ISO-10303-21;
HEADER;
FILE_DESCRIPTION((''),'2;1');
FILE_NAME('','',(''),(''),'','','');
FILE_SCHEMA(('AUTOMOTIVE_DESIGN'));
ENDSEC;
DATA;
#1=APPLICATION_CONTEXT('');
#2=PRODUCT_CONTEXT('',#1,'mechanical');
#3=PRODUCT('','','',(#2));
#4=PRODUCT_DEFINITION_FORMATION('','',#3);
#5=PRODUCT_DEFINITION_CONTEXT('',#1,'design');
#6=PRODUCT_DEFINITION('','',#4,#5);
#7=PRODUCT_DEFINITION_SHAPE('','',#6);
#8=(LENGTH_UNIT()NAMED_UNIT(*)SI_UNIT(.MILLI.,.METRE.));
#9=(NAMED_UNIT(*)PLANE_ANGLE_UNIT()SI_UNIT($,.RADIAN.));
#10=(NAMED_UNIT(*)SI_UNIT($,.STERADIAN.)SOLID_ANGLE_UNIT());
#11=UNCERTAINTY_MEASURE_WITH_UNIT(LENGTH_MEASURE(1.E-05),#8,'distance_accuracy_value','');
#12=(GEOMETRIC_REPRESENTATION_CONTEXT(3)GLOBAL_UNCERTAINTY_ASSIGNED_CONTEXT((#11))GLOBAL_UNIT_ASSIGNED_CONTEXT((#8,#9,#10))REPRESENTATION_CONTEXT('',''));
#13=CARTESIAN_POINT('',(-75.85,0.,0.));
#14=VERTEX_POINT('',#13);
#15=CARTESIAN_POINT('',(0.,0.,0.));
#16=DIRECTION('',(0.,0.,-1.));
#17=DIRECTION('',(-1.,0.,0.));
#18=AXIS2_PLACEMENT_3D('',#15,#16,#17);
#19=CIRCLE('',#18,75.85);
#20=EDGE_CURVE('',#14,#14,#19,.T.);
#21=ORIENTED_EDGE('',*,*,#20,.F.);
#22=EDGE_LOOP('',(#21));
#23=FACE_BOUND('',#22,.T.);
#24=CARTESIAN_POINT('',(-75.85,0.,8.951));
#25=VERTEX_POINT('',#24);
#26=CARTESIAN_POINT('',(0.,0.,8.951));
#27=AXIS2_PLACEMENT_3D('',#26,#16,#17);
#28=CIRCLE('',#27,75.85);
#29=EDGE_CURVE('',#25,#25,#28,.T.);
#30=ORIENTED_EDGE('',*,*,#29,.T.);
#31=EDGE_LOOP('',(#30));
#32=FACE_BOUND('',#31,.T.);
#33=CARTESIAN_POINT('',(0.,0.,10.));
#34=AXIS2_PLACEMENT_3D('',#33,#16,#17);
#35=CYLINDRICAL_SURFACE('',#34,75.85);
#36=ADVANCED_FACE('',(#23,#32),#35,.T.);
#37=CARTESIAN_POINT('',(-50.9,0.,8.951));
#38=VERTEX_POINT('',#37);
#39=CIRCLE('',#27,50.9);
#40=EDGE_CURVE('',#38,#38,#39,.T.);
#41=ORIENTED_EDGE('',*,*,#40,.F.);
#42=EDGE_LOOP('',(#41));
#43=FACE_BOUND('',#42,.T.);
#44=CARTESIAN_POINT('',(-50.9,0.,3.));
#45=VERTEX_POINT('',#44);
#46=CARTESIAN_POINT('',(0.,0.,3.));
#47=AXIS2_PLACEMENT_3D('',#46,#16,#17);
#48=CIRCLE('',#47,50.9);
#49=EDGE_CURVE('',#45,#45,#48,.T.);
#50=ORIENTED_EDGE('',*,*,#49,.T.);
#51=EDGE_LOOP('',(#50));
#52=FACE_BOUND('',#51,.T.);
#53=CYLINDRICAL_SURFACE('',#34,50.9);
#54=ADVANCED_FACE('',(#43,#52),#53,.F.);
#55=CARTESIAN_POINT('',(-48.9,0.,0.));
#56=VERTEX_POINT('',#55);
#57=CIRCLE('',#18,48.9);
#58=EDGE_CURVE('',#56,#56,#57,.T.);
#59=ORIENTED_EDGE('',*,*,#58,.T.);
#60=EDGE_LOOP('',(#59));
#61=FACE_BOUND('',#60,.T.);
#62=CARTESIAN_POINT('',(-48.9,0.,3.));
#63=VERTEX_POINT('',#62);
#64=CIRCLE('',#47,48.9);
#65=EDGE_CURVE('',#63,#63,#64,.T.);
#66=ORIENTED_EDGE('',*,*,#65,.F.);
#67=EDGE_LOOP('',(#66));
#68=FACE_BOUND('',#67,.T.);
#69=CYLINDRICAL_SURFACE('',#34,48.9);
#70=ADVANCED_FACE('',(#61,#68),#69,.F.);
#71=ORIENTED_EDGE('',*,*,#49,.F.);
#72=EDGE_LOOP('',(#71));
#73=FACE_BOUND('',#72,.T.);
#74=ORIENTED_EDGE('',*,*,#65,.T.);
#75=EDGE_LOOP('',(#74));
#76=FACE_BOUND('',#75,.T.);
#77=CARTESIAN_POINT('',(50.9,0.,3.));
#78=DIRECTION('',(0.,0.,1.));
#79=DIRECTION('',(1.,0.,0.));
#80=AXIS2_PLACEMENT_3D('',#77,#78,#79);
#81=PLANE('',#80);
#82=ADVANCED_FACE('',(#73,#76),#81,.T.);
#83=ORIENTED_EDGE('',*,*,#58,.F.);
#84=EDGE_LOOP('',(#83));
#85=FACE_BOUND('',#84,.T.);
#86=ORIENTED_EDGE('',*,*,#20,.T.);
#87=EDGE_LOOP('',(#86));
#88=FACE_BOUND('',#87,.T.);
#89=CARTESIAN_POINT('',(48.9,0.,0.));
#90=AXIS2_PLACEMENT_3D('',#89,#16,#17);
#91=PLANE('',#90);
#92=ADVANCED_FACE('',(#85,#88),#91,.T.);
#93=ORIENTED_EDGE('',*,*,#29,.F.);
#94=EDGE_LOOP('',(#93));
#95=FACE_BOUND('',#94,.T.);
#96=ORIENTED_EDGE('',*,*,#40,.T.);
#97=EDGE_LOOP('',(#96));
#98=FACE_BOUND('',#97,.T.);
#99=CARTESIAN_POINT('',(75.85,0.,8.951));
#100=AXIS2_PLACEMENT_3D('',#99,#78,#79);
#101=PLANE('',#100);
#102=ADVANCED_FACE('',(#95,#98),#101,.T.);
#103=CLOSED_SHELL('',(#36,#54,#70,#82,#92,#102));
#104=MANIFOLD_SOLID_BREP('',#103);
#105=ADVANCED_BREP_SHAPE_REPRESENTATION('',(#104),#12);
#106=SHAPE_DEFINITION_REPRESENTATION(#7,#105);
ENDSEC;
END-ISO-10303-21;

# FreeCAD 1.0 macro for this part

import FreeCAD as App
import Part
import Sketcher

V = App.Vector
Q = App.Units.Quantity


def add_polygon(sketch, points):
    """Adds a closed chain of lines whose ends are joined by coincident constraints."""
    first, n = sketch.GeometryCount, len(points)
    for a, b in zip(points, points[1:] + points[:1]):
        sketch.addGeometry(Part.LineSegment(App.Vector(*a, 0), App.Vector(*b, 0)), False)
    for i in range(n):
        sketch.addConstraint(Sketcher.Constraint("Coincident", first + i, 2, first + (i + 1) % n, 1))

doc = App.newDocument("Part")
body = doc.addObject("PartDesign::Body", "Body")

# Sketch on XZ plane
sketch1 = body.newObject("Sketcher::SketchObject", "Sketch")
sketch1.AttachmentSupport = (doc.getObject("XZ_Plane"), [""])
sketch1.MapMode = "FlatFace"
add_polygon(sketch1, [(48.9, 0), (75.8, 0), (75.8, 9), (50.9, 9), (50.9, 3), (48.9, 3)])  # lines 0-5
sketch1.addConstraint(Sketcher.Constraint("Horizontal", 0))
sketch1.addConstraint(Sketcher.Constraint("Vertical", 1))
sketch1.addConstraint(Sketcher.Constraint("Horizontal", 2))
sketch1.addConstraint(Sketcher.Constraint("Vertical", 3))
sketch1.addConstraint(Sketcher.Constraint("Horizontal", 4))
sketch1.addConstraint(Sketcher.Constraint("Vertical", 5))
sketch1.addConstraint(Sketcher.Constraint("PointOnObject", 0, 2, -1))
sketch1.addConstraint(Sketcher.Constraint("DistanceX", 4, 2, 4, 1, Q("2 mm")))
sketch1.addConstraint(Sketcher.Constraint("DistanceY", 5, 2, 5, 1, Q("3 mm")))
sketch1.addConstraint(Sketcher.Constraint("DistanceX", 0, 1, 0, 2, Q("26.95 mm")))
sketch1.addConstraint(Sketcher.Constraint("DistanceX", -1, 1, 2, 2, Q("50.9 mm")))
sketch1.addConstraint(Sketcher.Constraint("DistanceY", 1, 1, 1, 2, Q("8.951 mm")))
revolution = body.newObject("PartDesign::Revolution", "Revolution")
revolution.Profile = sketch1
revolution.ReferenceAxis = (sketch1, ["V_Axis"])
revolution.Angle = 360

doc.recompute()
